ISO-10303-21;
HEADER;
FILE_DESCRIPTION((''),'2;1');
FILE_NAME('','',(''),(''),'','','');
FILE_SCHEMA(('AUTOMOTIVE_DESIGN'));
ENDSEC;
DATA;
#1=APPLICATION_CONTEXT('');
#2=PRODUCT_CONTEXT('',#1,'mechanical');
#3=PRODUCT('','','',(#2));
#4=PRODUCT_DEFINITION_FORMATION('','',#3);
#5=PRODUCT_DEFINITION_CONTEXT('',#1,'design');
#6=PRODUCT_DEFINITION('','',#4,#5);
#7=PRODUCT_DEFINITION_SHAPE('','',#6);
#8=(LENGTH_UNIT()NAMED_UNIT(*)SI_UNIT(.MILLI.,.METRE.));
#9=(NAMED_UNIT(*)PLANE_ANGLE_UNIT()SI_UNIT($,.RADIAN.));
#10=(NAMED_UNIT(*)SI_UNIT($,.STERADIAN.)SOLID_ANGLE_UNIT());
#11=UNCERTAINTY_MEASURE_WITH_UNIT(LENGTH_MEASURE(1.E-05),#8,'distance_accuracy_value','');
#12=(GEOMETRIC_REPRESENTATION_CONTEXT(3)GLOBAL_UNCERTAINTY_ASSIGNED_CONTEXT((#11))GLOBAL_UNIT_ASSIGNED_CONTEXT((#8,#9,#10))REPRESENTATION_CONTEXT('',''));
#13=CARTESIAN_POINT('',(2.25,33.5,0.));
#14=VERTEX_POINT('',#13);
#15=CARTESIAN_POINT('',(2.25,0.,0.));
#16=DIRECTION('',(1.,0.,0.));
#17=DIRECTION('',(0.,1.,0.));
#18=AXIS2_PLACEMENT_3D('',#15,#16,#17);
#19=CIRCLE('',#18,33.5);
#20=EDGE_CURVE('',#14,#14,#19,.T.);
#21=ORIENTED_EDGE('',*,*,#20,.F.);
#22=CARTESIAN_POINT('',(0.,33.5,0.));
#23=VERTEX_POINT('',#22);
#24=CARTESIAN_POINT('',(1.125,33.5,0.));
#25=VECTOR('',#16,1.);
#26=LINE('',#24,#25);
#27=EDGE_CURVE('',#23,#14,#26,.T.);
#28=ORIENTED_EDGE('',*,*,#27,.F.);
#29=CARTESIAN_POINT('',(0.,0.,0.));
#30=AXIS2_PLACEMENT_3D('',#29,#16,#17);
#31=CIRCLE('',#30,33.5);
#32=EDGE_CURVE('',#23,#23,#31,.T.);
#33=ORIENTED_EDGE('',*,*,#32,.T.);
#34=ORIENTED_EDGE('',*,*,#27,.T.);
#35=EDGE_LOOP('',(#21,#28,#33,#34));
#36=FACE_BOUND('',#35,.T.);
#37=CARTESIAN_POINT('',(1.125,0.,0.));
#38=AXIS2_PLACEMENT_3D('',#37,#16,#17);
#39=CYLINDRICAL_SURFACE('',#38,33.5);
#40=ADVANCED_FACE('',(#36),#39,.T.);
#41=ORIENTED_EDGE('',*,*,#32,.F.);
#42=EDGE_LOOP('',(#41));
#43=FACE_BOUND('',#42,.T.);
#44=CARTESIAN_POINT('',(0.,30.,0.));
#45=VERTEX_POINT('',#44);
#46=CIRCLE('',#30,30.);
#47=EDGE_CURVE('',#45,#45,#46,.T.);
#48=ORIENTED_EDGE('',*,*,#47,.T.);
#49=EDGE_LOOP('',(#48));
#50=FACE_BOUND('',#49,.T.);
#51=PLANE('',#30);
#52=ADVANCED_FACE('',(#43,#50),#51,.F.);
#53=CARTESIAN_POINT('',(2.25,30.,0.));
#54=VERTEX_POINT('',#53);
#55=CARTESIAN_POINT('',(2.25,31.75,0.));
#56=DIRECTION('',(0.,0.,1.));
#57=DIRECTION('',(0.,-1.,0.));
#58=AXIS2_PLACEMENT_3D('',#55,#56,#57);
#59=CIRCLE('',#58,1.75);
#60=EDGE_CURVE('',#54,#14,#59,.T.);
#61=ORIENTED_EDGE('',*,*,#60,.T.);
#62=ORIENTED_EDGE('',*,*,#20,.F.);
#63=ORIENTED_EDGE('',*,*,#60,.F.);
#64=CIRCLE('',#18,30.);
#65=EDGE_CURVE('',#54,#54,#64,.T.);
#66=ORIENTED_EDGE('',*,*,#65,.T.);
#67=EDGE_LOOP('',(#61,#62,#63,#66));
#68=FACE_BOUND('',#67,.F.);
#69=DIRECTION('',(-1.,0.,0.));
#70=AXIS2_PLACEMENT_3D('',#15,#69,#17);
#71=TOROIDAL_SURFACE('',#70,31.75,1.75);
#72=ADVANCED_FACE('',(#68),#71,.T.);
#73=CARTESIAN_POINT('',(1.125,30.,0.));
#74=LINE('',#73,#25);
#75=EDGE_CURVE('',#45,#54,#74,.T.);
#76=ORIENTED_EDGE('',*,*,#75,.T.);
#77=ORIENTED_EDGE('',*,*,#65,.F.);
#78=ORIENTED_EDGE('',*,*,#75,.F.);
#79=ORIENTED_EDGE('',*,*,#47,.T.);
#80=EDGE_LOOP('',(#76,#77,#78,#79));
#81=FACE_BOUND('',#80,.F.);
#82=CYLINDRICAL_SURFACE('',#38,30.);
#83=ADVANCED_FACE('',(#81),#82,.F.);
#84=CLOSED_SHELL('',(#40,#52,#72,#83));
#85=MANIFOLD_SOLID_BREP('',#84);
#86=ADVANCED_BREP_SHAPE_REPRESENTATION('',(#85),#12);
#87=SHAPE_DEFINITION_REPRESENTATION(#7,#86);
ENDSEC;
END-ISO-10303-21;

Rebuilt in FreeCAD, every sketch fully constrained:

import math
import FreeCAD as App
import Part
import Sketcher

V = App.Vector

doc = App.newDocument("Part")
body = doc.addObject("PartDesign::Body", "Body")

# Sketch on XY plane
sketch1 = doc.addObject("Sketcher::SketchObject", "Sketch")
body.addObject(sketch1)
sketch1.AttachmentSupport = (doc.XY_Plane, [""])
sketch1.MapMode = "FlatFace"
sketch1.addGeometry(Part.LineSegment(V(0, 33.5, 0), V(0, 30, 0)), False)
sketch1.addGeometry(Part.LineSegment(V(0, 30, 0), V(2.25, 30, 0)), False)
sketch1.addGeometry(Part.ArcOfCircle(Part.Circle(V(2.25, 31.75, 0), V(0, 0, 1), 1.75), math.radians(-90), math.radians(90)), False)
sketch1.addGeometry(Part.LineSegment(V(2.25, 33.5, 0), V(0, 33.5, 0)), False)
sketch1.addConstraint(Sketcher.Constraint("Coincident", 0, 2, 1, 1))
sketch1.addConstraint(Sketcher.Constraint("Tangent", 1, 2, 2, 1))
sketch1.addConstraint(Sketcher.Constraint("Tangent", 2, 2, 3, 1))
sketch1.addConstraint(Sketcher.Constraint("Coincident", 3, 2, 0, 1))
sketch1.addConstraint(Sketcher.Constraint("Vertical", 0))
sketch1.addConstraint(Sketcher.Constraint("Horizontal", 1))
sketch1.addConstraint(Sketcher.Constraint("Horizontal", 3))
sketch1.addConstraint(Sketcher.Constraint("PointOnObject", 0, 2, -2))
sketch1.addConstraint(Sketcher.Constraint("Radius", 2, 1.75))
sketch1.addConstraint(Sketcher.Constraint("DistanceY", -1, 1, 0, 2, 30.0))
sketch1.addConstraint(Sketcher.Constraint("DistanceX", 1, 1, 1, 2, 2.25))
revolution = doc.addObject("PartDesign::Revolution", "Revolution")
body.addObject(revolution)
revolution.Profile = sketch1
revolution.ReferenceAxis = (sketch1, ["H_Axis"])
revolution.Angle = 360

doc.recompute()
